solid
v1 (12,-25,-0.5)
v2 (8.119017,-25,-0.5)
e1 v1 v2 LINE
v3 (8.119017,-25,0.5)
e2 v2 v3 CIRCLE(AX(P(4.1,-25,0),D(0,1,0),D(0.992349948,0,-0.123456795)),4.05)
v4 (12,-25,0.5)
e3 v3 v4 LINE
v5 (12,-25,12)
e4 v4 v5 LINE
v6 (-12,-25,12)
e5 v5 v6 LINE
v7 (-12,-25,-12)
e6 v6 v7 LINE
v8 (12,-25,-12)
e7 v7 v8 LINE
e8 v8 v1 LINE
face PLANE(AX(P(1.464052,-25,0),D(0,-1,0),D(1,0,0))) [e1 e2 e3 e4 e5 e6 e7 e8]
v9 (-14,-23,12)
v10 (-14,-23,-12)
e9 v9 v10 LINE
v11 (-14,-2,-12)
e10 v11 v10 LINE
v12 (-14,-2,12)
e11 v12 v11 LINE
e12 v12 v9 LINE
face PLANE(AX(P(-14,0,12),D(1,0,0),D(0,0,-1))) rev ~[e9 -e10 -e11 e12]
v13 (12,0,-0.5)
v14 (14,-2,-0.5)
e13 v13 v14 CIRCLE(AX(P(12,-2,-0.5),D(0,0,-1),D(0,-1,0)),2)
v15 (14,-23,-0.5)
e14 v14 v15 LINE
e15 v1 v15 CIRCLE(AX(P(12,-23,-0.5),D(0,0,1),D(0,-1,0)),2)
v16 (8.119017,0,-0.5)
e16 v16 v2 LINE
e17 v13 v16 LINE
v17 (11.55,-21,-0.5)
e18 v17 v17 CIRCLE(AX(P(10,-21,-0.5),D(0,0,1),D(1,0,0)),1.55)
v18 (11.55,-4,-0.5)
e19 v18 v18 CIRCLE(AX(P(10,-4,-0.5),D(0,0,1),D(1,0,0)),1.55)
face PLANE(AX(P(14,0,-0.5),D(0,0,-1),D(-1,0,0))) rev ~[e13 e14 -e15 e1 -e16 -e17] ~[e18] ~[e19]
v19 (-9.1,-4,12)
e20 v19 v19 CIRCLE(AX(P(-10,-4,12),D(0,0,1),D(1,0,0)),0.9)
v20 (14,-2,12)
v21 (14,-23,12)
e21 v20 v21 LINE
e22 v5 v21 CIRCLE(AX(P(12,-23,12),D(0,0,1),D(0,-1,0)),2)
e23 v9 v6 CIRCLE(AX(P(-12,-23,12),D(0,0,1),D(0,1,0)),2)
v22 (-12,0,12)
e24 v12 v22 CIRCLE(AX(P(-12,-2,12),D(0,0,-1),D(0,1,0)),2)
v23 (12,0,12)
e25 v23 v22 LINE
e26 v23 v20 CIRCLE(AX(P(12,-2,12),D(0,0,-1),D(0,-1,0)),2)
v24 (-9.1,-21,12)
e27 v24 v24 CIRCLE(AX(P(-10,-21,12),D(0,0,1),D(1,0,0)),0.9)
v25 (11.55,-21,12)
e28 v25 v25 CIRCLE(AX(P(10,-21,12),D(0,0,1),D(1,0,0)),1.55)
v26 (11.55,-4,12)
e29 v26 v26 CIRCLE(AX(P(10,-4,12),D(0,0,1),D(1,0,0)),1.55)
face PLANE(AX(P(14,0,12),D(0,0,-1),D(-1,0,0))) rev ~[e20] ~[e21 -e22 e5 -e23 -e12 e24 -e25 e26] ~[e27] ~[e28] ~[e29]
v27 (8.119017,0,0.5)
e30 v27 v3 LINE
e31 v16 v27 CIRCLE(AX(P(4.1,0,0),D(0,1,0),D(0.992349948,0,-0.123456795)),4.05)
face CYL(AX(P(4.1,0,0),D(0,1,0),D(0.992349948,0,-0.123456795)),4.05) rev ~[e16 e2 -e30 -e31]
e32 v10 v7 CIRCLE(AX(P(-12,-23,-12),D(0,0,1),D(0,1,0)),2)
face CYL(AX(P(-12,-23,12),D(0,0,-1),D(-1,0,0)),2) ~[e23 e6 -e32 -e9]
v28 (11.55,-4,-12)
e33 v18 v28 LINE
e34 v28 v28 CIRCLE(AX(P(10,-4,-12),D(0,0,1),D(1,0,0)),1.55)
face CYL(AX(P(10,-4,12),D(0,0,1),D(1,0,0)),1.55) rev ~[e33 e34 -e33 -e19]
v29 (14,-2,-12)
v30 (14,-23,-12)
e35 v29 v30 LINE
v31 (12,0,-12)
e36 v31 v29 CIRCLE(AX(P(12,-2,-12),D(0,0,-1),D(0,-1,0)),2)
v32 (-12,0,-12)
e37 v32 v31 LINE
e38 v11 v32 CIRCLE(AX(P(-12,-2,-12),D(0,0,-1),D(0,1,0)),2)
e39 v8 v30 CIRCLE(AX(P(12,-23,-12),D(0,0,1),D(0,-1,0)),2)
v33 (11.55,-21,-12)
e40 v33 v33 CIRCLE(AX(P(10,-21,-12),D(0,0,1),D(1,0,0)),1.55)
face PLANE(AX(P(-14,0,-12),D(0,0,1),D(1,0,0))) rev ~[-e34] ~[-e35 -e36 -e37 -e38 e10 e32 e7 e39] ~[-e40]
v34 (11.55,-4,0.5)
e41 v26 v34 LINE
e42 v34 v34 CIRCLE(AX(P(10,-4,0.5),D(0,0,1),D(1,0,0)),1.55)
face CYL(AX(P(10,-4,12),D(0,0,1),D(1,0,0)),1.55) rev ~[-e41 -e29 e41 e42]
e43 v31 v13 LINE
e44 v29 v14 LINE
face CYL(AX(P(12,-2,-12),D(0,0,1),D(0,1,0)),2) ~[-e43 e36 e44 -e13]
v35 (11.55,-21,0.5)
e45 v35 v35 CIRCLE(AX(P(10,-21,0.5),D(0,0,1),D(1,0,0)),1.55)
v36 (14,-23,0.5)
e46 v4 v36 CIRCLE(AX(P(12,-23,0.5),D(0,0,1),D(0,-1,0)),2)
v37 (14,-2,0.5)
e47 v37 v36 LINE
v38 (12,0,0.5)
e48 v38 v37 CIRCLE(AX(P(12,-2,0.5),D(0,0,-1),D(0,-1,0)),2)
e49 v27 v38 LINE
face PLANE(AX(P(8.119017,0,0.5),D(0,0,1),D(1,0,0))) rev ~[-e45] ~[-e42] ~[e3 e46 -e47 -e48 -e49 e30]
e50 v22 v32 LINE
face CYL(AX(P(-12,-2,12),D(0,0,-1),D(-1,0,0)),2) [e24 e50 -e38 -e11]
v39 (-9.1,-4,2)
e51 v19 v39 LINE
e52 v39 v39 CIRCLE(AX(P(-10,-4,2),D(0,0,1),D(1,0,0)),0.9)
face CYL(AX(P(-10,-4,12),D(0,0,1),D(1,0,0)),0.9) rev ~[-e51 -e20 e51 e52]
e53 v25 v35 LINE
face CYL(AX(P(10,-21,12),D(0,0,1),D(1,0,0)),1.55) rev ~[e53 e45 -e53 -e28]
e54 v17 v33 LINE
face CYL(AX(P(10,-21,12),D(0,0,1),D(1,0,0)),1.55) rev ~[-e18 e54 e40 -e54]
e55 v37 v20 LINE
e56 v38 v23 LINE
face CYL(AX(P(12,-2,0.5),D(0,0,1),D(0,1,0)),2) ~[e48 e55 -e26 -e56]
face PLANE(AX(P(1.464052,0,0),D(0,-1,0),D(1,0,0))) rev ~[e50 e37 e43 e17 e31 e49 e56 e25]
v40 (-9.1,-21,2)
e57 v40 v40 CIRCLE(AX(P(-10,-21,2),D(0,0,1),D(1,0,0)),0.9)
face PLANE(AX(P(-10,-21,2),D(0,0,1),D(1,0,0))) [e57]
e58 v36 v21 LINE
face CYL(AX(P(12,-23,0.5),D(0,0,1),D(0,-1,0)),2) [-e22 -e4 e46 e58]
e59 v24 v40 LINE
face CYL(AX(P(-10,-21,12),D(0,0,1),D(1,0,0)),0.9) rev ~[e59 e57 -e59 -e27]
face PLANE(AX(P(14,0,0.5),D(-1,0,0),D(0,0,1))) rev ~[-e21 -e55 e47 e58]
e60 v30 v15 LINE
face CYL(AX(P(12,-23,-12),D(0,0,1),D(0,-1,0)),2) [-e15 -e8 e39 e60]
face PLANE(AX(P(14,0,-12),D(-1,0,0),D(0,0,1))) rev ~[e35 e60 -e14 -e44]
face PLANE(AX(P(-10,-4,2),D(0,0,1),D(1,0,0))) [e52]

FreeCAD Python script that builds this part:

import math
import FreeCAD as App
import Part
import Sketcher

V = App.Vector


def edges_at(feature, points):
    """Names of the edges that pass closest to the given points."""
    edges = feature.Shape.Edges
    near = lambda p: min(range(len(edges)), key=lambda i: edges[i].distToShape(Part.Vertex(*p))[0])
    return sorted({f"Edge{near(p) + 1}" for p in points})

doc = App.newDocument("Part")
body = doc.addObject("PartDesign::Body", "Body")

# Sketch on XZ plane
sketch1 = doc.addObject("Sketcher::SketchObject", "Sketch")
body.addObject(sketch1)
sketch1.AttachmentSupport = (doc.XZ_Plane, [""])
sketch1.MapMode = "FlatFace"
sketch1.addGeometry([
    Part.LineSegment(V(-14, -12, 0), V(14, -12, 0)),  # 0
    Part.LineSegment(V(14, -12, 0), V(14, -0.5, 0)),  # 1
    Part.LineSegment(V(14, -0.5, 0), V(8.119017, -0.5, 0)),  # 2
    Part.ArcOfCircle(Part.Circle(V(4.1, 0, 0), V(0, 0, 1), 4.05), math.radians(7.091646), math.radians(352.908354)),  # 3
    Part.LineSegment(V(8.119017, 0.5, 0), V(14, 0.5, 0)),  # 4
    Part.LineSegment(V(14, 0.5, 0), V(14, 12, 0)),  # 5
    Part.LineSegment(V(14, 12, 0), V(-14, 12, 0)),  # 6
    Part.LineSegment(V(-14, 12, 0), V(-14, -12, 0)),  # 7
], False)
sketch1.addConstraint([
    Sketcher.Constraint("Coincident", 0, 2, 1, 1),
    Sketcher.Constraint("Coincident", 1, 2, 2, 1),
    Sketcher.Constraint("Coincident", 2, 2, 3, 2),
    Sketcher.Constraint("Coincident", 3, 1, 4, 1),
    Sketcher.Constraint("Coincident", 4, 2, 5, 1),
    Sketcher.Constraint("Coincident", 5, 2, 6, 1),
    Sketcher.Constraint("Coincident", 6, 2, 7, 1),
    Sketcher.Constraint("Coincident", 7, 2, 0, 1),
    Sketcher.Constraint("Horizontal", 0),
    Sketcher.Constraint("Vertical", 1),
    Sketcher.Constraint("Horizontal", 2),
    Sketcher.Constraint("Horizontal", 4),
    Sketcher.Constraint("Vertical", 5),
    Sketcher.Constraint("Horizontal", 6),
    Sketcher.Constraint("Vertical", 7),
    Sketcher.Constraint("Symmetric", 0, 2, 6, 2, -1, 1),
    Sketcher.Constraint("Symmetric", 2, 2, 3, 1, -1),
    Sketcher.Constraint("Vertical", 1, 2, 4, 2),
    Sketcher.Constraint("DistanceX", 0, 1, 0, 2, 28.0),
    Sketcher.Constraint("DistanceY", 7, 2, 7, 1, 24.0),
    Sketcher.Constraint("Radius", 3, 4.05),
    Sketcher.Constraint("DistanceY", 1, 1, 1, 2, 11.5),
    Sketcher.Constraint("DistanceX", -1, 1, 3, 3, 4.1),
])
pad1 = doc.addObject("PartDesign::Pad", "Pad")
body.addObject(pad1)
pad1.Profile = sketch1
pad1.Length = 25

# Sketch on XY plane
sketch2 = doc.addObject("Sketcher::SketchObject", "Sketch001")
body.addObject(sketch2)
sketch2.AttachmentSupport = (doc.XY_Plane, [""])
sketch2.MapMode = "FlatFace"
sketch2.AttachmentOffset = App.Placement(V(0, 0, 12), App.Rotation())
sketch2.addGeometry([
    Part.Circle(V(-10, -4, 0), V(0, 0, 1), 0.9),
    Part.Circle(V(-10, -21, 0), V(0, 0, 1), 0.9),
], False)
sketch2.addConstraint([
    Sketcher.Constraint("Equal", 0, 1),
    Sketcher.Constraint("Vertical", 0, 3, 1, 3),
    Sketcher.Constraint("Diameter", 0, 1.8),
    Sketcher.Constraint("DistanceX", 0, 3, -1, 1, 10.0),
    Sketcher.Constraint("DistanceY", 0, 3, -1, 1, 4.0),
    Sketcher.Constraint("DistanceY", 1, 3, -1, 1, 21.0),
])
pocket1 = doc.addObject("PartDesign::Pocket", "Pocket")
body.addObject(pocket1)
pocket1.Profile = sketch2
pocket1.Length = 10

# Sketch on XY plane
sketch3 = doc.addObject("Sketcher::SketchObject", "Sketch002")
body.addObject(sketch3)
sketch3.AttachmentSupport = (doc.XY_Plane, [""])
sketch3.MapMode = "FlatFace"
sketch3.AttachmentOffset = App.Placement(V(0, 0, 12), App.Rotation())
sketch3.addGeometry([
    Part.Circle(V(10, -21, 0), V(0, 0, 1), 1.55),
    Part.Circle(V(10, -4, 0), V(0, 0, 1), 1.55),
], False)
sketch3.addConstraint([
    Sketcher.Constraint("Equal", 0, 1),
    Sketcher.Constraint("Vertical", 0, 3, 1, 3),
    Sketcher.Constraint("Diameter", 0, 3.1),
    Sketcher.Constraint("DistanceX", -1, 1, 0, 3, 10.0),
    Sketcher.Constraint("DistanceY", 0, 3, -1, 1, 21.0),
    Sketcher.Constraint("DistanceY", 1, 3, -1, 1, 4.0),
])
pocket2 = doc.addObject("PartDesign::Pocket", "Pocket001")
body.addObject(pocket2)
pocket2.Profile = sketch3
pocket2.Type = "ThroughAll"
doc.recompute()

fillet = doc.addObject("PartDesign::Fillet", "Fillet")
body.addObject(fillet)
fillet.Base = (pocket2, edges_at(pocket2, [
    (-14, 0, 0),
    (14, -25, -6.25),
    (14, -25, 6.25),
    (14, 0, 6.25),
    (14, 0, -6.25),
    (-14, -25, 0),
]))
fillet.Radius = 2

doc.recompute()
